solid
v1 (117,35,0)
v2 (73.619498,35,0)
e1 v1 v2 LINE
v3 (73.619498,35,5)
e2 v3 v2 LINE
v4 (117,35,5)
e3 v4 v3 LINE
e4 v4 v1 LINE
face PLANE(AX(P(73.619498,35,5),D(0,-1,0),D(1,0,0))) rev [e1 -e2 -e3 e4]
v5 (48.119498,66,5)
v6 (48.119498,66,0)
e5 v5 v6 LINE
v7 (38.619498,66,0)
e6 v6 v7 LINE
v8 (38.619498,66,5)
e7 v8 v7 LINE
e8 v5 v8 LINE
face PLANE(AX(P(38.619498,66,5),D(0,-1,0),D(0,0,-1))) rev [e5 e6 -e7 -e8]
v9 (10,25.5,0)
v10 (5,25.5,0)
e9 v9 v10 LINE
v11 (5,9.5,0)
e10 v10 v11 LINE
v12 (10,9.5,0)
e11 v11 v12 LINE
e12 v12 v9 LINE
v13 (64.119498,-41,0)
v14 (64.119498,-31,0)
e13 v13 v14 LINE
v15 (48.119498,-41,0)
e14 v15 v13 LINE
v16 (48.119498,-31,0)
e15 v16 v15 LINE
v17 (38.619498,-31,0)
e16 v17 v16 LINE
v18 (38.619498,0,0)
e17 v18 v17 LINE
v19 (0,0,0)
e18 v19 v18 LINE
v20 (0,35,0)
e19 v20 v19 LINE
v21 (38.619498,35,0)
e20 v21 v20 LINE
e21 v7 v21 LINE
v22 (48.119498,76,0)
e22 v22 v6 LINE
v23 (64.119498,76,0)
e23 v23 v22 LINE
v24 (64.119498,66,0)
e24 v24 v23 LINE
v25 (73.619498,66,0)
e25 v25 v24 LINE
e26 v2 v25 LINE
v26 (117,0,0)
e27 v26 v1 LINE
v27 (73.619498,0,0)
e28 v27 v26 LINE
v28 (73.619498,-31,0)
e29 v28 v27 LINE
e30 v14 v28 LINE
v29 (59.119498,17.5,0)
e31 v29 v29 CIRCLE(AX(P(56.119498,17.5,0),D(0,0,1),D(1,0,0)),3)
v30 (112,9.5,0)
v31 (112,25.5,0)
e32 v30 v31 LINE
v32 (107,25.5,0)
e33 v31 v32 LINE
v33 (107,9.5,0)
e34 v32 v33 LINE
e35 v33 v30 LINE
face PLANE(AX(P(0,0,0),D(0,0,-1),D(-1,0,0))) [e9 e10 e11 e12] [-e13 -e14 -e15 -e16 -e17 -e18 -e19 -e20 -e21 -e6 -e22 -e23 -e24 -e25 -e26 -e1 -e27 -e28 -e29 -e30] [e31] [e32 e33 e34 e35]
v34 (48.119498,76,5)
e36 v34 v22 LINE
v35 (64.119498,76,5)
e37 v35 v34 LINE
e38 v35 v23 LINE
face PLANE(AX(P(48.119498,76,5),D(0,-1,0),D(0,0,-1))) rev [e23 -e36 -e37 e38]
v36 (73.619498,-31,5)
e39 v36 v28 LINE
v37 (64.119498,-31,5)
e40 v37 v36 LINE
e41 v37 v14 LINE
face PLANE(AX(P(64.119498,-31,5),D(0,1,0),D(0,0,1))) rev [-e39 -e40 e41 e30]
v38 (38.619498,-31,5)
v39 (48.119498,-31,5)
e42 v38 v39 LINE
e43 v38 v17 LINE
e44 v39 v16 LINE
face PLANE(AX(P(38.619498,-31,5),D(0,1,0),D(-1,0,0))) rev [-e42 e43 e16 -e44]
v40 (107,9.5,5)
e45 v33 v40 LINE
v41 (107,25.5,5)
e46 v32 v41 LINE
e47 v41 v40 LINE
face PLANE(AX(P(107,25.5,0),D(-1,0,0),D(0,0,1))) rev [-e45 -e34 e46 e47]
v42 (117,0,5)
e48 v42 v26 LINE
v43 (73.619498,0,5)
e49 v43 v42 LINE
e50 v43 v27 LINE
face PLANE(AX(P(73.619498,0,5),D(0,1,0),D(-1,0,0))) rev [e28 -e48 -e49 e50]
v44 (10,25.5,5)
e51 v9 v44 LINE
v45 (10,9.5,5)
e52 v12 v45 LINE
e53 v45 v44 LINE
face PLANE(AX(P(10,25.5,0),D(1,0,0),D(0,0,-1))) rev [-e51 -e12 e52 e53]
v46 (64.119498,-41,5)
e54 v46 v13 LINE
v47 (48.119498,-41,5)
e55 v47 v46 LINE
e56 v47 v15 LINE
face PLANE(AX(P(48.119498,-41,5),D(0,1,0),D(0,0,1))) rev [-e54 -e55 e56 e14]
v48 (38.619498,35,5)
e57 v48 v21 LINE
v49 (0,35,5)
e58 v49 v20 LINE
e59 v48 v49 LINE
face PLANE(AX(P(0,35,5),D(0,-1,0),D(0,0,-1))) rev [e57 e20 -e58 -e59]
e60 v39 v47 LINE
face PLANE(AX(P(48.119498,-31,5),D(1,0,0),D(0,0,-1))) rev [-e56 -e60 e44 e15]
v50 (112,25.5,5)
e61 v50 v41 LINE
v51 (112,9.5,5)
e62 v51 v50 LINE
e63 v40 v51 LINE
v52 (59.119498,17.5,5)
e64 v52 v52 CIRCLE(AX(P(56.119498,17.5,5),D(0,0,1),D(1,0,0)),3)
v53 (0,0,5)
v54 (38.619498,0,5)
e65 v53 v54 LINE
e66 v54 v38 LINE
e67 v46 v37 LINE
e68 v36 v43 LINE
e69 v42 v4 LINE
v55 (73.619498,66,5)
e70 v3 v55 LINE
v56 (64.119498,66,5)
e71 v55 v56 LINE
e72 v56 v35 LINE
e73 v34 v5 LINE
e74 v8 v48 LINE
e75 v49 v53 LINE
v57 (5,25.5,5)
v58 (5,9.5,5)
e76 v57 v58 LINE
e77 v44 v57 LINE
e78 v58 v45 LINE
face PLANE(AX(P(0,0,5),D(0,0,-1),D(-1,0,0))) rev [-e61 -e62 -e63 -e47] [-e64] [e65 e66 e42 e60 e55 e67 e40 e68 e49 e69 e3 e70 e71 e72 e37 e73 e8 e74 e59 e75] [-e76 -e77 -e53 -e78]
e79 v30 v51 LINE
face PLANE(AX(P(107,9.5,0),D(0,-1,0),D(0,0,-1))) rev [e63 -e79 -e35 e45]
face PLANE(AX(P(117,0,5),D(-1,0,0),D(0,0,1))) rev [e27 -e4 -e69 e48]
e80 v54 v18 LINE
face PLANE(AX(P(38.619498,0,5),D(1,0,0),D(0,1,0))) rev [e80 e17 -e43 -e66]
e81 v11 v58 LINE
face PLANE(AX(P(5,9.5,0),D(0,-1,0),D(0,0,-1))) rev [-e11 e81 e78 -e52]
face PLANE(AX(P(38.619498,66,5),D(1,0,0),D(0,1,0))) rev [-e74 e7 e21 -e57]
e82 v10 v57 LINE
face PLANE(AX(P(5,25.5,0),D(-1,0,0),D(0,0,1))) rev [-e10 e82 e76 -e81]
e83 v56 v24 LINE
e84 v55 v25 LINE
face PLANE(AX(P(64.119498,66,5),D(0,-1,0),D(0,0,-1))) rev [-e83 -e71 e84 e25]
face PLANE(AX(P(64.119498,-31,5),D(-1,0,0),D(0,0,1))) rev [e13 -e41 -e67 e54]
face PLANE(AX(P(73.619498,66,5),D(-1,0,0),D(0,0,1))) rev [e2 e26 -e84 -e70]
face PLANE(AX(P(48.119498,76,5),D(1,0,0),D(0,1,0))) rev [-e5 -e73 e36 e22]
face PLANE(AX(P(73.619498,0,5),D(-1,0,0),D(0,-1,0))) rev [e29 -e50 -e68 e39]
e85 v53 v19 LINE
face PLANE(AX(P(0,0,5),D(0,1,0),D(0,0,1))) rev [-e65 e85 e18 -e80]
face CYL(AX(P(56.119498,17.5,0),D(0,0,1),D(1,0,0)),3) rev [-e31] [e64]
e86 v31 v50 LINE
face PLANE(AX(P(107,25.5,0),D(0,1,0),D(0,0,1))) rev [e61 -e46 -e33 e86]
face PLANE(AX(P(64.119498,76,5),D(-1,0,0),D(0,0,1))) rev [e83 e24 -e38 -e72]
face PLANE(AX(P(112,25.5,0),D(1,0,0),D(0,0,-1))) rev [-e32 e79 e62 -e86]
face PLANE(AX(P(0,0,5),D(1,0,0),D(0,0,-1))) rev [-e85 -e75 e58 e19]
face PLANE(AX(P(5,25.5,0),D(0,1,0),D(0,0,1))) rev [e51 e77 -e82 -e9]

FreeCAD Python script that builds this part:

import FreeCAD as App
import Part
import Sketcher
from FreeCAD import Vector
Q = App.Units.Quantity


def add_polygon(sketch, points):
    """Adds a closed chain of lines whose ends are joined by coincident constraints."""
    first, n = sketch.GeometryCount, len(points)
    for a, b in zip(points, points[1:] + points[:1]):
        sketch.addGeometry(Part.LineSegment(App.Vector(*a, 0), App.Vector(*b, 0)), False)
    for i in range(n):
        sketch.addConstraint(Sketcher.Constraint("Coincident", first + i, 2, first + (i + 1) % n, 1))

doc = App.newDocument("Part")
body = doc.addObject("PartDesign::Body", "Body")

sketch1 = body.newObject("Sketcher::SketchObject", "Sketch")
sketch1.AttachmentSupport = (doc.getObject("XY_Plane"), [""])
sketch1.MapMode = "FlatFace"
add_polygon(sketch1, [(0, 0), (39, 0), (39, -31), (48, -31), (48, -41), (64, -41), (64, -31), (74, -31), (74, 0), (117, 0), (117, 35), (74, 35), (74, 66), (64, 66), (64, 76), (48, 76), (48, 66), (39, 66), (39, 35), (0, 35)])
sketch1.addConstraint([
    Sketcher.Constraint("Horizontal", 0),
    Sketcher.Constraint("Vertical", 1),
    Sketcher.Constraint("Horizontal", 2),
    Sketcher.Constraint("Vertical", 3),
    Sketcher.Constraint("Horizontal", 4),
    Sketcher.Constraint("Vertical", 5),
    Sketcher.Constraint("Horizontal", 6),
    Sketcher.Constraint("Vertical", 7),
    Sketcher.Constraint("Horizontal", 8),
    Sketcher.Constraint("Vertical", 9),
    Sketcher.Constraint("Horizontal", 10),
    Sketcher.Constraint("Vertical", 11),
    Sketcher.Constraint("Horizontal", 12),
    Sketcher.Constraint("Vertical", 13),
    Sketcher.Constraint("Horizontal", 14),
    Sketcher.Constraint("Vertical", 15),
    Sketcher.Constraint("Horizontal", 16),
    Sketcher.Constraint("Vertical", 17),
    Sketcher.Constraint("Horizontal", 18),
    Sketcher.Constraint("Vertical", 19),
    Sketcher.Constraint("Coincident", 19, 2, -1, 1),
    Sketcher.Constraint("PointOnObject", 7, 2, -1),
    Sketcher.Constraint("Horizontal", 2, 2, 5, 2),
    Sketcher.Constraint("Horizontal", 12, 2, 15, 2),
    Sketcher.Constraint("Horizontal", 10, 2, 17, 2),
    Sketcher.Constraint("Vertical", 7, 2, 10, 2),
    Sketcher.Constraint("Vertical", 5, 2, 12, 2),
    Sketcher.Constraint("Vertical", 3, 2, 14, 2),
    Sketcher.Constraint("Vertical", 1, 2, 16, 2),
    Sketcher.Constraint("Equal", 2, 6),
    Sketcher.Constraint("Equal", 7, 11),
    Sketcher.Constraint("Equal", 5, 13),
    Sketcher.Constraint("DistanceX", 4, 1, 4, 2, Q("16 mm")),
    Sketcher.Constraint("DistanceY", 1, 2, 1, 1, Q("31 mm")),
    Sketcher.Constraint("DistanceY", 3, 2, 3, 1, Q("10 mm")),
    Sketcher.Constraint("DistanceY", 9, 1, 9, 2, Q("35 mm")),
    Sketcher.Constraint("DistanceX", 2, 1, 2, 2, Q("9.5 mm")),
    Sketcher.Constraint("DistanceX", -1, 1, 8, 2, Q("117 mm")),
    Sketcher.Constraint("DistanceX", 0, 1, 0, 2, Q("38.619498 mm")),
])
pad1 = body.newObject("PartDesign::Pad", "Pad")
pad1.Profile = sketch1
pad1.Length = 5

sketch2 = body.newObject("Sketcher::SketchObject", "Sketch001")
sketch2.AttachmentSupport = (doc.getObject("XY_Plane"), [""])
sketch2.MapMode = "FlatFace"
sketch2.AttachmentOffset = App.Placement(Vector(0, 0, 5), App.Rotation())
add_polygon(sketch2, [(5, 26), (5, 10), (10, 10), (10, 26)])
add_polygon(sketch2, [(107, 26), (107, 10), (112, 10), (112, 26)])
sketch2.addConstraint([
    Sketcher.Constraint("Vertical", 0),
    Sketcher.Constraint("Horizontal", 1),
    Sketcher.Constraint("Vertical", 2),
    Sketcher.Constraint("Horizontal", 3),
    Sketcher.Constraint("Vertical", 4),
    Sketcher.Constraint("Horizontal", 5),
    Sketcher.Constraint("Vertical", 6),
    Sketcher.Constraint("Horizontal", 7),
    Sketcher.Constraint("Horizontal", 1, 2, 4, 2),
    Sketcher.Constraint("Horizontal", 3, 2, 6, 2),
    Sketcher.Constraint("Equal", 3, 5),
    Sketcher.Constraint("DistanceX", 1, 1, 1, 2, Q("5 mm")),
    Sketcher.Constraint("DistanceY", 0, 2, 0, 1, Q("16 mm")),
    Sketcher.Constraint("DistanceX", -1, 1, 0, 2, Q("5 mm")),
    Sketcher.Constraint("DistanceX", -1, 1, 4, 2, Q("107 mm")),
    Sketcher.Constraint("DistanceY", -1, 1, 0, 2, Q("9.5 mm")),
])
pocket1 = body.newObject("PartDesign::Pocket", "Pocket")
pocket1.Profile = sketch2
pocket1.Type = "ThroughAll"

sketch3 = body.newObject("Sketcher::SketchObject", "Sketch002")
sketch3.AttachmentSupport = (doc.getObject("XY_Plane"), [""])
sketch3.MapMode = "FlatFace"
sketch3.AttachmentOffset = App.Placement(Vector(0, 0, 5), App.Rotation())
sketch3.addGeometry(Part.Circle(Vector(56.1, 17.5, 0), Vector(0, 0, 1), 3), False)
sketch3.addConstraint([
    Sketcher.Constraint("Diameter", 0, Q("6 mm")),
    Sketcher.Constraint("DistanceY", -1, 1, 0, 3, Q("17.5 mm")),
    Sketcher.Constraint("DistanceX", -1, 1, 0, 3, Q("56.119498 mm")),
])
pocket2 = body.newObject("PartDesign::Pocket", "Pocket001")
pocket2.Profile = sketch3
pocket2.Type = "ThroughAll"

doc.recompute()
